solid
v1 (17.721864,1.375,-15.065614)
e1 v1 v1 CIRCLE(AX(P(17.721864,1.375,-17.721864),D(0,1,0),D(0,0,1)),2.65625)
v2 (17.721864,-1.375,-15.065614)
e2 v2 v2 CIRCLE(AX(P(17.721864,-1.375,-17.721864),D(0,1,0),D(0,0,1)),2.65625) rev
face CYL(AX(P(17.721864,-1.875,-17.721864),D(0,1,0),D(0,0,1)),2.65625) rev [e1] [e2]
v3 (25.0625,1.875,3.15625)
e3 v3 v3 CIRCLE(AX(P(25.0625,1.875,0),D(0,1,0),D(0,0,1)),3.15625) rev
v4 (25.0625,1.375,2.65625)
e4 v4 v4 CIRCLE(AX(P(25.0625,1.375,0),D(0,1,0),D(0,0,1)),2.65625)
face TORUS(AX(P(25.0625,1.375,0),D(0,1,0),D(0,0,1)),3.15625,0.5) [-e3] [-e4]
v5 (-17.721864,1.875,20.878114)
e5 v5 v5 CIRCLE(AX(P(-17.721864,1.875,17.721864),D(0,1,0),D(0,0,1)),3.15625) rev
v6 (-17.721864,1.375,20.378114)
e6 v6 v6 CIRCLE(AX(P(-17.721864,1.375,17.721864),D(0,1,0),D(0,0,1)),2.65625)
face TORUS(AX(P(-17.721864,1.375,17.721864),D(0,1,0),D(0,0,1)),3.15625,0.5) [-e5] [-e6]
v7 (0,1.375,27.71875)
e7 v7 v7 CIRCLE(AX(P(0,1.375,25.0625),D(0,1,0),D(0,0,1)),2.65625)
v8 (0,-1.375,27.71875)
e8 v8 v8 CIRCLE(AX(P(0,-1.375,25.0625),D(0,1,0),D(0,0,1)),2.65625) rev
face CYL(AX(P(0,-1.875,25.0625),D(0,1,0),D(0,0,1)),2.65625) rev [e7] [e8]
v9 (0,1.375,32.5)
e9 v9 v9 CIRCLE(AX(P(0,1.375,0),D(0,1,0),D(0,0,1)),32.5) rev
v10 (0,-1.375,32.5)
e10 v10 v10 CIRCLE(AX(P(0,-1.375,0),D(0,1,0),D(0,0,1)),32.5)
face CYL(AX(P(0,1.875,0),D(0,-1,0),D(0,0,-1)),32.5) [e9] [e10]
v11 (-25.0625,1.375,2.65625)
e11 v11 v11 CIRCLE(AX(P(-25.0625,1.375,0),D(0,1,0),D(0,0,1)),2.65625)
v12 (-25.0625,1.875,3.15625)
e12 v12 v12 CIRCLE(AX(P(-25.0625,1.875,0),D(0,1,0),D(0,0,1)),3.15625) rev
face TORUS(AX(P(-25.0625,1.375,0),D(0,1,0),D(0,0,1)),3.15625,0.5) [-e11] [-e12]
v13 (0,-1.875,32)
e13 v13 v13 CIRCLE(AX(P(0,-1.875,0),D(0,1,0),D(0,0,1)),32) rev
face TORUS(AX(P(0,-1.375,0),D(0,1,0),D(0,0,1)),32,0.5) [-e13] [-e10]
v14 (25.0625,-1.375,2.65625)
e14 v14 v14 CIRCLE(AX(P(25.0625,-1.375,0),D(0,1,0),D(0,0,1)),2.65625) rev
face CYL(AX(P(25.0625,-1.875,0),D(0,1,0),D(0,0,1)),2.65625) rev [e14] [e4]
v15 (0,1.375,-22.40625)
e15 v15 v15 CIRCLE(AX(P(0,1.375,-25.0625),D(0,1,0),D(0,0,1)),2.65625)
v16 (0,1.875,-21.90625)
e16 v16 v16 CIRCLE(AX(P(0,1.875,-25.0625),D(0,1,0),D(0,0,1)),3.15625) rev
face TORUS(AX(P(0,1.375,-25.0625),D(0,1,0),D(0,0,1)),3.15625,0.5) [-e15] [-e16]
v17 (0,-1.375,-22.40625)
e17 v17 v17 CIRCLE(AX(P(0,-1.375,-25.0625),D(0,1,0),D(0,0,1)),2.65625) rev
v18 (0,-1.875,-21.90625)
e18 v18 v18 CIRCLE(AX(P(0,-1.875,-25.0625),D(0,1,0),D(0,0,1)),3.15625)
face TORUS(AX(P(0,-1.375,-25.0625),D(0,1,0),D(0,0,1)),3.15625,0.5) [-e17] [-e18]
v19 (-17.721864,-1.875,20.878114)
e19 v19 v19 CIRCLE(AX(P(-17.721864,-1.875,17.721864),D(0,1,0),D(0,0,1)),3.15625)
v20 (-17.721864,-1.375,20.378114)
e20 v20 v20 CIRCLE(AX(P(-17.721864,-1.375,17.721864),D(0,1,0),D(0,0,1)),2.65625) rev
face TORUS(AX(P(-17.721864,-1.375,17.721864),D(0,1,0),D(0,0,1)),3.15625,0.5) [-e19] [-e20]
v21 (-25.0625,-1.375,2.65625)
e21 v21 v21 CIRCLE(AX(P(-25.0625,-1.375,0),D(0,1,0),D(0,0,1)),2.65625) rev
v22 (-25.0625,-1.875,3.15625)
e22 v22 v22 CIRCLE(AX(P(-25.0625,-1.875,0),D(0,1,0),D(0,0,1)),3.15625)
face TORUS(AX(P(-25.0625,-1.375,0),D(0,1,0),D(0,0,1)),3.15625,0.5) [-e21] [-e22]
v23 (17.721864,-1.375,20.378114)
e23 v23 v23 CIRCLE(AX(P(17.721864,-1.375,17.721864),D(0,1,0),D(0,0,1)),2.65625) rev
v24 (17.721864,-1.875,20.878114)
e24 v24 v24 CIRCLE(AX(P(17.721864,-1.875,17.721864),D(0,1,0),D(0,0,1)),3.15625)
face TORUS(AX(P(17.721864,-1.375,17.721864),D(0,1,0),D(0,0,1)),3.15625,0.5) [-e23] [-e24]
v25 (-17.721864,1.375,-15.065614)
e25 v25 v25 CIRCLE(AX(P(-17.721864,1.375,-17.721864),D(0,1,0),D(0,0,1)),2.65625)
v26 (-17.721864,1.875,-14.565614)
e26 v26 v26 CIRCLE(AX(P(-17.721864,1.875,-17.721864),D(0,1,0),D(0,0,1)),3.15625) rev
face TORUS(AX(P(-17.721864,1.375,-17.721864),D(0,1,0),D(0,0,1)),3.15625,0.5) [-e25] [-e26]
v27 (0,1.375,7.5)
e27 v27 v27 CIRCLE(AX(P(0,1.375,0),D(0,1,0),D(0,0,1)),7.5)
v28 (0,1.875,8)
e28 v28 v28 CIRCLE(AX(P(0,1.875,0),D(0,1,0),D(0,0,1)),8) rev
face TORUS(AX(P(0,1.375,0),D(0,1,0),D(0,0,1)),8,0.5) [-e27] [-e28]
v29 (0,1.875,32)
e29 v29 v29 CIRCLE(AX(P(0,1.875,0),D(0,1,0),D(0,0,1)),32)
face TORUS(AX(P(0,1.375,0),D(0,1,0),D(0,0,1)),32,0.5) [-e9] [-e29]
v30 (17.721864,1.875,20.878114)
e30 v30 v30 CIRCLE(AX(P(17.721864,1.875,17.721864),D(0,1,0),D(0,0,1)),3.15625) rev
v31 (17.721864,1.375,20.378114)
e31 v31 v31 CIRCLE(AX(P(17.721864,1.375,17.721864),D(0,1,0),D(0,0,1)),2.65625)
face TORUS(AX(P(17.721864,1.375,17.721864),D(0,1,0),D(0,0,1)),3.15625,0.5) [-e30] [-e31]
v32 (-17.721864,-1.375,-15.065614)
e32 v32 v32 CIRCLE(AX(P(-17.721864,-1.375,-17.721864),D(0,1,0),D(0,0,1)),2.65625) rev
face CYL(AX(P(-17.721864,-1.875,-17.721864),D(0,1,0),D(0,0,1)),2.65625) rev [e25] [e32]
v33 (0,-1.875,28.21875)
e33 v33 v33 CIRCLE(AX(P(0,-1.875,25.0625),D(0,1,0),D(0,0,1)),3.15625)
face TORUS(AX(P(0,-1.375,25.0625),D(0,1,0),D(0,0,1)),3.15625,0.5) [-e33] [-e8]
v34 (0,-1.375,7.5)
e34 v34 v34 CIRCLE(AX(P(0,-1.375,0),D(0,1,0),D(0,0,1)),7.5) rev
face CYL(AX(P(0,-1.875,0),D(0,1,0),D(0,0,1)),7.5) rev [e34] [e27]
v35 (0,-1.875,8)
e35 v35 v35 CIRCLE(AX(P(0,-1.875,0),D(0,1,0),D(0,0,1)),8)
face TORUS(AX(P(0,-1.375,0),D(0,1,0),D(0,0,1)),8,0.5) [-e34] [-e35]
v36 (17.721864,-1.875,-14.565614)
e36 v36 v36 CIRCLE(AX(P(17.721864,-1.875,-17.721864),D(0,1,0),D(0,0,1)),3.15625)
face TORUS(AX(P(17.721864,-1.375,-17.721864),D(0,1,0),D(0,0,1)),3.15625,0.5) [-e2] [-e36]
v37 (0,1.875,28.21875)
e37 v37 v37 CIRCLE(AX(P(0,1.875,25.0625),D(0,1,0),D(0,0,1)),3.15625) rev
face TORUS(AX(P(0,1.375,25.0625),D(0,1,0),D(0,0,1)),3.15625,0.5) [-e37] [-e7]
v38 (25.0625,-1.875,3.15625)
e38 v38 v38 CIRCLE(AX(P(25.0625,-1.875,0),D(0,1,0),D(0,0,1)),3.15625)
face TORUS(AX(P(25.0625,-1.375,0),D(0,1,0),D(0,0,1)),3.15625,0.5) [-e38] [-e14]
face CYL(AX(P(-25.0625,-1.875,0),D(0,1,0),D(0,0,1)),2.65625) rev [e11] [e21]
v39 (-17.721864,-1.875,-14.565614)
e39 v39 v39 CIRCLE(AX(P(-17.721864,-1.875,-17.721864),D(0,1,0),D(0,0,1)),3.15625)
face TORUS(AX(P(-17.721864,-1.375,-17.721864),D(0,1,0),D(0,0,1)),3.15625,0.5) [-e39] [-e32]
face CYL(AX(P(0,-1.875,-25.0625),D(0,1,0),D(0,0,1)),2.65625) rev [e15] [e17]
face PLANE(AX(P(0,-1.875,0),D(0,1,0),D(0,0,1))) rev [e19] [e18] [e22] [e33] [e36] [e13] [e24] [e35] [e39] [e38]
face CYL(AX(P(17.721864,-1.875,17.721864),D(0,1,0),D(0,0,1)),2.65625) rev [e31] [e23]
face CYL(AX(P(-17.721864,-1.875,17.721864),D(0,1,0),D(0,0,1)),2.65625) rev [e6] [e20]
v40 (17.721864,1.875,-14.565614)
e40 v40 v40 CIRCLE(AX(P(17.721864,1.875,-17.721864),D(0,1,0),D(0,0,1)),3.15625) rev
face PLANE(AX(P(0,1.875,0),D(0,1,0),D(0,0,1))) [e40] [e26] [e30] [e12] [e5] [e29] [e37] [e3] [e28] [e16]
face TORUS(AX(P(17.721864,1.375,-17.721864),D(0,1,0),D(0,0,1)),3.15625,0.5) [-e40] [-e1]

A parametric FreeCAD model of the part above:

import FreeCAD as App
import Part
import Sketcher
from FreeCAD import Vector
Q = App.Units.Quantity


def edges_at(feature, points):
    """Names of the edges that pass closest to the given points."""
    edges = feature.Shape.Edges
    near = lambda p: min(range(len(edges)), key=lambda i: edges[i].distToShape(Part.Vertex(*p))[0])
    return sorted({f"Edge{near(p) + 1}" for p in points})

doc = App.newDocument("Part")
params = doc.addObject("Spreadsheet::Sheet", "Params")
for row, (alias, value) in enumerate([
    ("sketch1_diameter", "65 mm"),
    ("pad1_length", "3.75 mm"),
    ("sketch2_diameter", "15 mm"),
    ("pocket2_length", "5.75 mm"),
    ("fillet_radius", "0.5 mm"),
], start=1):
    params.set(f"A{row}", alias)
    params.set(f"B{row}", "=" + value)
    params.setAlias(f"B{row}", alias)

body = doc.addObject("PartDesign::Body", "Body")

sketch1 = body.newObject("Sketcher::SketchObject", "Sketch")
sketch1.AttachmentSupport = (doc.getObject("XZ_Plane"), [""])
sketch1.MapMode = "FlatFace"
sketch1.addGeometry(Part.Circle(Vector(0, 0, 0), Vector(0, 0, 1), 32), False)
sketch1.addConstraint([
    Sketcher.Constraint("Coincident", 0, 3, -1, 1),
    Sketcher.Constraint("Diameter", 0, Q("65 mm")),
])
sketch1.setExpression("Constraints[1]", "Params.sketch1_diameter")
pad1 = body.newObject("PartDesign::Pad", "Pad")
pad1.Profile = sketch1
pad1.setExpression("Length", "Params.pad1_length")
pad1.Midplane = True

sketch2 = body.newObject("Sketcher::SketchObject", "Sketch001")
sketch2.AttachmentSupport = (doc.getObject("XZ_Plane"), [""])
sketch2.MapMode = "FlatFace"
sketch2.addGeometry(Part.Circle(Vector(0, 0, 0), Vector(0, 0, 1), 8), False)
sketch2.addConstraint([
    Sketcher.Constraint("Coincident", 0, 3, -1, 1),
    Sketcher.Constraint("Diameter", 0, Q("15 mm")),
])
sketch2.setExpression("Constraints[1]", "Params.sketch2_diameter")
pocket1 = body.newObject("PartDesign::Pocket", "Pocket")
pocket1.Profile = sketch2
pocket1.Type = "ThroughAll"
pocket1.Midplane = True

sketch3 = body.newObject("Sketcher::SketchObject", "Sketch002")
sketch3.AttachmentSupport = (doc.getObject("XZ_Plane"), [""])
sketch3.MapMode = "FlatFace"
sketch3.addGeometry(Part.Circle(Vector(0, -25.1, 0), Vector(0, 0, 1), 2.7), False)
sketch3.addConstraint([
    Sketcher.Constraint("PointOnObject", 0, 3, -2),
    Sketcher.Constraint("Diameter", 0, Q("5.3125 mm")),
    Sketcher.Constraint("DistanceY", 0, 3, -1, 1, Q("25.0625 mm")),
])
pocket2 = body.newObject("PartDesign::Pocket", "Pocket001")
pocket2.Profile = sketch3
pocket2.setExpression("Length", "Params.pocket2_length")
pocket2.Midplane = True
doc.recompute()

polarpattern = body.newObject("PartDesign::PolarPattern", "PolarPattern")
polarpattern.Originals = [pocket2]
polarpattern.Axis = (doc.getObject("Y_Axis"), [""])
polarpattern.Angle = 360
polarpattern.Occurrences = 8
body.Tip = polarpattern
doc.recompute()

fillet = body.newObject("PartDesign::Fillet", "Fillet")
fillet.Base = (polarpattern, edges_at(polarpattern, [
    (-2.656, -1.875, -25.062),
    (-2.656, 1.875, -25.062),
    (-32.5, -1.875, 0),
    (-25.062, -1.875, 2.656),
    (-25.062, 1.875, 2.656),
    (-15.844, -1.875, 19.6),
    (-15.844, 1.875, 19.6),
    (2.656, -1.875, 25.062),
    (2.656, 1.875, 25.062),
    (19.6, -1.875, 15.844),
    (19.6, 1.875, 15.844),
    (25.062, -1.875, -2.656),
    (25.062, 1.875, -2.656),
    (15.844, -1.875, -19.6),
    (15.844, 1.875, -19.6),
    (-19.6, -1.875, -15.844),
    (-19.6, 1.875, -15.844),
    (-32.5, 1.875, 0),
    (-7.5, -1.875, 0),
    (-7.5, 1.875, 0),
]))
fillet.setExpression("Radius", "Params.fillet_radius")

doc.recompute()
